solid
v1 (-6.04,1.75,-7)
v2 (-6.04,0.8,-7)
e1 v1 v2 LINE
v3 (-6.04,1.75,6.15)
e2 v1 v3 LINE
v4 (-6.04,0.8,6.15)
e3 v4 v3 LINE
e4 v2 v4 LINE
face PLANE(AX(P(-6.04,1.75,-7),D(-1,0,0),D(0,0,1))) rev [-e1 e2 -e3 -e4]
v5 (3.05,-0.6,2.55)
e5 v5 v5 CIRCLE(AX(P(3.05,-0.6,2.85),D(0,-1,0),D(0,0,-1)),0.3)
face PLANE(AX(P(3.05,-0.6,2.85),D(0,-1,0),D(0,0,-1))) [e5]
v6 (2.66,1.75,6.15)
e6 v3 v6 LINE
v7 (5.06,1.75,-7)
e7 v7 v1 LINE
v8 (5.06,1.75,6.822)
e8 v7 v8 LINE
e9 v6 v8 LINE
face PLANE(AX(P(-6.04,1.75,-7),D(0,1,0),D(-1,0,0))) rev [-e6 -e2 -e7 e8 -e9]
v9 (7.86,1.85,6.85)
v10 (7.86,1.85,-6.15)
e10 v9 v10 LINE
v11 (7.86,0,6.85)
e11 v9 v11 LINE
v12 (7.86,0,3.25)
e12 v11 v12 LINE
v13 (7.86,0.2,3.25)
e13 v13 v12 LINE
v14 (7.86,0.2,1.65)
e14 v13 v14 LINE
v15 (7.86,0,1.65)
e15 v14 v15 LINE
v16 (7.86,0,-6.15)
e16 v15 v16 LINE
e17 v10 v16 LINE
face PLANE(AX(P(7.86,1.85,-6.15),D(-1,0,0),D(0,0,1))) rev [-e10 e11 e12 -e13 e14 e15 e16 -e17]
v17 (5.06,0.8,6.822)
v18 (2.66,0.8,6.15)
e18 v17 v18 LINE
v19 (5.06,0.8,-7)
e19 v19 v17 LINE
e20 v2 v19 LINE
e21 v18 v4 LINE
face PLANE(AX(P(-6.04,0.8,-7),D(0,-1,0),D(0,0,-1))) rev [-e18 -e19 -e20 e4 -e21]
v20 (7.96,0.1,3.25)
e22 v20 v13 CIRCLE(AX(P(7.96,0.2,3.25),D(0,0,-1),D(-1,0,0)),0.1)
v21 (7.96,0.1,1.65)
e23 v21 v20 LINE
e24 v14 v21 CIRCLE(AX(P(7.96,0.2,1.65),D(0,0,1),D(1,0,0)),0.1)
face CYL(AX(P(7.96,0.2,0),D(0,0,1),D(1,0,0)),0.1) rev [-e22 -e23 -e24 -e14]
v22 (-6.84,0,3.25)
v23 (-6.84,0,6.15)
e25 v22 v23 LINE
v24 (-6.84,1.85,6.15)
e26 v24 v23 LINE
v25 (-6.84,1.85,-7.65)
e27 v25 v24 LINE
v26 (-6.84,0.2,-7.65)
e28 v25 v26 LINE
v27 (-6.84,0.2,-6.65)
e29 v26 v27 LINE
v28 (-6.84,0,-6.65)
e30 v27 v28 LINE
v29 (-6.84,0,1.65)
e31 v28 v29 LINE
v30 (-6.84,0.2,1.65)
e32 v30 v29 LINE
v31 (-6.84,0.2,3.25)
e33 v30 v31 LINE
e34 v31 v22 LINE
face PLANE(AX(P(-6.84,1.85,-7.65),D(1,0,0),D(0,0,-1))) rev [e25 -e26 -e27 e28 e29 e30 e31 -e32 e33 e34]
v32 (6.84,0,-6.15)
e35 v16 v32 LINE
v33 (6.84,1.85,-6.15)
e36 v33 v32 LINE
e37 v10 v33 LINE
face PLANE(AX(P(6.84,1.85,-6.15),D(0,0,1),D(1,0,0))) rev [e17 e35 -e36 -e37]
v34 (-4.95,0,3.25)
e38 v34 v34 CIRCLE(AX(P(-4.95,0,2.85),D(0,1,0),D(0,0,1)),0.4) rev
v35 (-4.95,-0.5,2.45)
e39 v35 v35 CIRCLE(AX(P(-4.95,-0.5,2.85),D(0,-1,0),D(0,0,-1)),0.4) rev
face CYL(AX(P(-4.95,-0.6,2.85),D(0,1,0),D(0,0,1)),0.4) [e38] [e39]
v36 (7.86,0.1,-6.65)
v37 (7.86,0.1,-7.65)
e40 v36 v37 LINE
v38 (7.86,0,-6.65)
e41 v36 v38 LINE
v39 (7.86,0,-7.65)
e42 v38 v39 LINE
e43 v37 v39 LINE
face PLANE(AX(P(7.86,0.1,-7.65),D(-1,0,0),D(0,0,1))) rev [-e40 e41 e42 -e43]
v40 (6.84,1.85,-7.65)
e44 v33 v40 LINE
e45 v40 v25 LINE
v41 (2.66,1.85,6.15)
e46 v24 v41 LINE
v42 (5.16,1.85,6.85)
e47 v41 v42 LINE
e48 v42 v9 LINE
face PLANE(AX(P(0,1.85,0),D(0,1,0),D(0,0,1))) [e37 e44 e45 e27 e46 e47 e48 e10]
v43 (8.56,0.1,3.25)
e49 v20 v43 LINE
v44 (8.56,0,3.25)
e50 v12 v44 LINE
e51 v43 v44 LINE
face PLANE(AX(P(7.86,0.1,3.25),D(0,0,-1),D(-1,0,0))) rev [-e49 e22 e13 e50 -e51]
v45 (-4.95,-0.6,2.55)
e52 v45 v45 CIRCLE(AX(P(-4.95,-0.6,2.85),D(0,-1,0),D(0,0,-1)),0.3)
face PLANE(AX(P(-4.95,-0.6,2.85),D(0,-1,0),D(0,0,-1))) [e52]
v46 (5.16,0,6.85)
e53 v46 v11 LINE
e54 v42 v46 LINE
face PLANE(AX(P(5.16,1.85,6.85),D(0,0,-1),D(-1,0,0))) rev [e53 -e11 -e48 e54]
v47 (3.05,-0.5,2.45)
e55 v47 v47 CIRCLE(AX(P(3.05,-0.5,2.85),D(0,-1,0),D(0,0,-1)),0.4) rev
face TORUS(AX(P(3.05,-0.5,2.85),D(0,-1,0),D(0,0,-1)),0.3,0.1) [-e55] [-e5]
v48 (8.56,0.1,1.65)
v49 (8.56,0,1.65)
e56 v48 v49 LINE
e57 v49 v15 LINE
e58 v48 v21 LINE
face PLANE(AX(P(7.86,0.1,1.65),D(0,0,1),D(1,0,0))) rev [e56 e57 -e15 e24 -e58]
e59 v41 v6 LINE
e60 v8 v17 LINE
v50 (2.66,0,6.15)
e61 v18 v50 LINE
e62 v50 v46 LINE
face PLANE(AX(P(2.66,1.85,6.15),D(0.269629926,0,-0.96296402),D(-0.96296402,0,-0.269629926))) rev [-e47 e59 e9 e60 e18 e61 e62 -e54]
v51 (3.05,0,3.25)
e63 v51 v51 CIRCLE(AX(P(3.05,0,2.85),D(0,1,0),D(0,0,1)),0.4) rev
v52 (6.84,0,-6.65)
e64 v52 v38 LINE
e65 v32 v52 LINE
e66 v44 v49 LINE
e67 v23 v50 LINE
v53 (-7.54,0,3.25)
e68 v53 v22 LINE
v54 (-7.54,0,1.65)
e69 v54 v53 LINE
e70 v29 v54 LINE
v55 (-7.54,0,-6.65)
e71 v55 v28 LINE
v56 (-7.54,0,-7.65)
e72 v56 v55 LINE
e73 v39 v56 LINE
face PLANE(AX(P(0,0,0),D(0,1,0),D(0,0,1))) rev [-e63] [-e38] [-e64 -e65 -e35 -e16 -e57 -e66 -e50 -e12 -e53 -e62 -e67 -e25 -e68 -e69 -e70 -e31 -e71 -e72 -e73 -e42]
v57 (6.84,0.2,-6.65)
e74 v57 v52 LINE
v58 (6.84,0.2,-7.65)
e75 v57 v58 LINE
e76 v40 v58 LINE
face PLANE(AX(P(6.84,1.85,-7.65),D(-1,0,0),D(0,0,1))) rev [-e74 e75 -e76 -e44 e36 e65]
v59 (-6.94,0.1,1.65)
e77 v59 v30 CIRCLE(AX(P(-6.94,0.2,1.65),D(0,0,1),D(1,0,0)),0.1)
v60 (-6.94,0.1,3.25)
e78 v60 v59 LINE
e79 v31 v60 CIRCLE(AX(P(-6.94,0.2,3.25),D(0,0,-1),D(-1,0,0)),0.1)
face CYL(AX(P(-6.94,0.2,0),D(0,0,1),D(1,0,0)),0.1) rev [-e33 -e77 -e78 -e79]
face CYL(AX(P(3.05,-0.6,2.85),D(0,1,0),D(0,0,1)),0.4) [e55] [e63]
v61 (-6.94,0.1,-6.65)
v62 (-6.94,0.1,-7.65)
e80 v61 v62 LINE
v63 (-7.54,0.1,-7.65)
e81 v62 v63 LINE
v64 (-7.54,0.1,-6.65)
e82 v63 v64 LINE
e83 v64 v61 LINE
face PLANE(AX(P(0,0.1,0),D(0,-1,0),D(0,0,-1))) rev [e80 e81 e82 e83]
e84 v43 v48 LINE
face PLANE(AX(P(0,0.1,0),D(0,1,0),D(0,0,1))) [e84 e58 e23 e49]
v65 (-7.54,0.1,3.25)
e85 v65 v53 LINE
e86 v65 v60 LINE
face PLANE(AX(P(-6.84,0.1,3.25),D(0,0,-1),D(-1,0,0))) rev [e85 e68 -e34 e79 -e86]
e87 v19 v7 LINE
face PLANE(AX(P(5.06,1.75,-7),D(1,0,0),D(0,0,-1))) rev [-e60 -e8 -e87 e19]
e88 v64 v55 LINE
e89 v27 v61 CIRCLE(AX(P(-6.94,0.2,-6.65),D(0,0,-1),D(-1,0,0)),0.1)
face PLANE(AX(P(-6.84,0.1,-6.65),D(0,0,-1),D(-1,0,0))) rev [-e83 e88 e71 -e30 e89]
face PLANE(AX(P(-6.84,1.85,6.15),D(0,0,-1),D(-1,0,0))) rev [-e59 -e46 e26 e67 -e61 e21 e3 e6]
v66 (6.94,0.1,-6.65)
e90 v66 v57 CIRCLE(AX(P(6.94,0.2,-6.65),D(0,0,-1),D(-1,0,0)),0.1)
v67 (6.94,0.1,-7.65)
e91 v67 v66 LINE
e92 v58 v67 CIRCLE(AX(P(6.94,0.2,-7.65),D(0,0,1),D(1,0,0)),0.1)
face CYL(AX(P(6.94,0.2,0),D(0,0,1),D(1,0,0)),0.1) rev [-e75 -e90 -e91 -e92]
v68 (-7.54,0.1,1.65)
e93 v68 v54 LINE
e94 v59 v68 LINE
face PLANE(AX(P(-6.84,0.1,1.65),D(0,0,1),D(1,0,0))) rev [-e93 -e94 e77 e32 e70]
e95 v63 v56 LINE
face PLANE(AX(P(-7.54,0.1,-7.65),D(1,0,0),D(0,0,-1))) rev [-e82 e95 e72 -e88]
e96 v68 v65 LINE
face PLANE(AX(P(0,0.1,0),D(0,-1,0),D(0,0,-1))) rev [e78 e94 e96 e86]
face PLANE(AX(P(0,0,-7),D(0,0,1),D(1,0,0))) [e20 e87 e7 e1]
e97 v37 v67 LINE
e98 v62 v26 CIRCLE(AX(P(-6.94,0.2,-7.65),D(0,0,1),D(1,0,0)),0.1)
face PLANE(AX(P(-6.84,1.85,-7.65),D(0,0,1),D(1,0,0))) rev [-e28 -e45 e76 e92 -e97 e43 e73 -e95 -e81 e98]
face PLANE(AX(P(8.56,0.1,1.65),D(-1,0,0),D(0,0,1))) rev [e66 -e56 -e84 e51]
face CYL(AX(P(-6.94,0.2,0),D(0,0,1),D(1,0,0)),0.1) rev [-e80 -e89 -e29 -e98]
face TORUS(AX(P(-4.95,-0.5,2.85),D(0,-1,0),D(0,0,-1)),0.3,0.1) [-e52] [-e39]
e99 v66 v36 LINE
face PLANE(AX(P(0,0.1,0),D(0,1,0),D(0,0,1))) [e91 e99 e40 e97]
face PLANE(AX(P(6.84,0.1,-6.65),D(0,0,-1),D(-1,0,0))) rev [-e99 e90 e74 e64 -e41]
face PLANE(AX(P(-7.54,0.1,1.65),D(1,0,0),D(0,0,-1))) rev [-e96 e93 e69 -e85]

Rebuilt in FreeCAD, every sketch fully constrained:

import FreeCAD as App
import Part
import Sketcher


def edges_at(feature, points):
    """Names of the edges that pass closest to the given points."""
    edges = feature.Shape.Edges
    near = lambda p: min(range(len(edges)), key=lambda i: edges[i].distToShape(Part.Vertex(*p))[0])
    return sorted({f"Edge{near(p) + 1}" for p in points})


def add_polygon(sketch, points):
    """Adds a closed chain of lines whose ends are joined by coincident constraints."""
    first, n = sketch.GeometryCount, len(points)
    for a, b in zip(points, points[1:] + points[:1]):
        sketch.addGeometry(Part.LineSegment(App.Vector(*a, 0), App.Vector(*b, 0)), False)
    for i in range(n):
        sketch.addConstraint(Sketcher.Constraint("Coincident", first + i, 2, first + (i + 1) % n, 1))

doc = App.newDocument("Part")
body = doc.addObject("PartDesign::Body", "Body")

# Sketch on XZ plane
sketch1 = body.newObject("Sketcher::SketchObject", "Sketch")
sketch1.AttachmentSupport = (doc.getObject("XZ_Plane"), [""])
sketch1.MapMode = "FlatFace"
add_polygon(sketch1, [(2.7, 6.2), (5.2, 6.8), (7.9, 6.8), (7.9, -6.2), (6.8, -6.2), (6.8, -7.7), (-6.8, -7.7), (-6.8, 6.2)])  # lines 0-7
sketch1.addConstraint([
    Sketcher.Constraint("Horizontal", 1),
    Sketcher.Constraint("Vertical", 2),
    Sketcher.Constraint("Horizontal", 3),
    Sketcher.Constraint("Vertical", 4),
    Sketcher.Constraint("Horizontal", 5),
    Sketcher.Constraint("Vertical", 6),
    Sketcher.Constraint("Horizontal", 7),
    Sketcher.Constraint("Symmetric", 3, 2, 6, 2, -1, 1),
    Sketcher.Constraint("DistanceY", 2, 2, 2, 1, 13.0),
    Sketcher.Constraint("DistanceX", 1, 1, 1, 2, 2.7),
    Sketcher.Constraint("DistanceX", 7, 1, 7, 2, 9.5),
    Sketcher.Constraint("DistanceY", 4, 2, 4, 1, 1.5),
    Sketcher.Constraint("DistanceY", 6, 1, 6, 2, 13.8),
    Sketcher.Constraint("DistanceX", 5, 2, 0, 2, 12.0),
    Sketcher.Constraint("DistanceX", 3, 2, 3, 1, 1.02),
])
pad1 = body.newObject("PartDesign::Pad", "Pad")
pad1.Profile = sketch1
pad1.Length = 1.85
pad1.Reversed = True

# Sketch on XZ plane
sketch2 = body.newObject("Sketcher::SketchObject", "Sketch001")
sketch2.AttachmentSupport = (doc.getObject("XZ_Plane"), [""])
sketch2.MapMode = "FlatFace"
add_polygon(sketch2, [(7.9, 1.6), (7.9, 3.2), (8.6, 3.2), (8.6, 1.6)])  # lines 0-3
add_polygon(sketch2, [(6.8, -7.7), (6.8, -6.7), (7.9, -6.7), (7.9, -7.7)])  # lines 4-7
add_polygon(sketch2, [(-7.5, -7.7), (-7.5, -6.7), (-6.8, -6.7), (-6.8, -7.7)])  # lines 8-11
add_polygon(sketch2, [(-7.5, 1.6), (-7.5, 3.2), (-6.8, 3.2), (-6.8, 1.6)])  # lines 12-15
sketch2.addConstraint([
    Sketcher.Constraint("Vertical", 0),
    Sketcher.Constraint("Horizontal", 1),
    Sketcher.Constraint("Vertical", 2),
    Sketcher.Constraint("Horizontal", 3),
    Sketcher.Constraint("Vertical", 4),
    Sketcher.Constraint("Horizontal", 5),
    Sketcher.Constraint("Vertical", 6),
    Sketcher.Constraint("Horizontal", 7),
    Sketcher.Constraint("Vertical", 8),
    Sketcher.Constraint("Horizontal", 9),
    Sketcher.Constraint("Vertical", 10),
    Sketcher.Constraint("Horizontal", 11),
    Sketcher.Constraint("Vertical", 12),
    Sketcher.Constraint("Horizontal", 13),
    Sketcher.Constraint("Vertical", 14),
    Sketcher.Constraint("Horizontal", 15),
    Sketcher.Constraint("Symmetric", 4, 2, 9, 2, -2),
    Sketcher.Constraint("Horizontal", 7, 2, 10, 2),
    Sketcher.Constraint("Horizontal", 1, 2, 12, 2),
    Sketcher.Constraint("Horizontal", 3, 2, 14, 2),
    Sketcher.Constraint("Vertical", 3, 2, 5, 2),
    Sketcher.Constraint("Vertical", 11, 2, 12, 2),
    Sketcher.Constraint("Vertical", 10, 2, 13, 2),
    Sketcher.Constraint("Equal", 3, 9),
    Sketcher.Constraint("DistanceY", 4, 1, 4, 2, 1.0),
    Sketcher.Constraint("DistanceX", 1, 1, 1, 2, 0.7),
    Sketcher.Constraint("DistanceY", 0, 1, 0, 2, 1.6),
    Sketcher.Constraint("DistanceX", 5, 1, 5, 2, 1.02),
    Sketcher.Constraint("DistanceY", 4, 2, 3, 2, 8.3),
    Sketcher.Constraint("DistanceX", 8, 2, 5, 2, 15.4),
    Sketcher.Constraint("DistanceY", -1, 1, 0, 2, 3.25),
])
pad2 = body.newObject("PartDesign::Pad", "Pad001")
pad2.Profile = sketch2
pad2.Length = 0.1
pad2.Reversed = True

# Sketch on XZ plane
sketch3 = body.newObject("Sketcher::SketchObject", "Sketch002")
sketch3.AttachmentSupport = (doc.getObject("XZ_Plane"), [""])
sketch3.MapMode = "FlatFace"
sketch3.addGeometry([
    Part.Circle(App.Vector(-4.95, 2.85, 0), App.Vector(0, 0, 1), 0.4),
    Part.Circle(App.Vector(3.05, 2.85, 0), App.Vector(0, 0, 1), 0.4),
], False)
sketch3.addConstraint([
    Sketcher.Constraint("Equal", 0, 1),
    Sketcher.Constraint("Horizontal", 0, 3, 1, 3),
    Sketcher.Constraint("Diameter", 0, 0.8),
    Sketcher.Constraint("DistanceX", 0, 3, 1, 3, 8.0),
    Sketcher.Constraint("DistanceX", 0, 3, -1, 1, 4.95),
    Sketcher.Constraint("DistanceY", -1, 1, 0, 3, 2.85),
])
pad3 = body.newObject("PartDesign::Pad", "Pad002")
pad3.Profile = sketch3
pad3.Length = 0.6

# Sketch on XY plane
sketch4 = body.newObject("Sketcher::SketchObject", "Sketch003")
sketch4.AttachmentSupport = (doc.getObject("XY_Plane"), [""])
sketch4.MapMode = "FlatFace"
add_polygon(sketch4, [(-6, 1.8), (-6, 0.8), (5.1, 0.8), (5.1, 1.8)])  # lines 0-3
sketch4.addConstraint([
    Sketcher.Constraint("Vertical", 0),
    Sketcher.Constraint("Horizontal", 1),
    Sketcher.Constraint("Vertical", 2),
    Sketcher.Constraint("Horizontal", 3),
    Sketcher.Constraint("DistanceX", 1, 1, 1, 2, 11.1),
    Sketcher.Constraint("DistanceY", 0, 2, 0, 1, 0.95),
    Sketcher.Constraint("DistanceY", -1, 1, 0, 2, 0.8),
    Sketcher.Constraint("DistanceX", 0, 2, -1, 1, 6.04),
])
pocket1 = body.newObject("PartDesign::Pocket", "Pocket")
pocket1.Profile = sketch4
pocket1.Type = "TwoLengths"
pocket1.Length = 12.628353
pocket1.Length2 = 7
pocket1.Reversed = True
doc.recompute()

fillet = body.newObject("PartDesign::Fillet", "Fillet")
fillet.Base = (pocket1, edges_at(pocket1, [(-4.95, -0.6, 2.45), (3.05, -0.6, 2.45)]))
fillet.Radius = 0.1
doc.recompute()

fillet2 = body.newObject("PartDesign::Fillet", "Fillet001")
fillet2.Base = (fillet, edges_at(fillet, [
    (6.84, 0.1, -7.15),
    (7.86, 0.1, 2.45),
    (-6.84, 0.1, -7.15),
    (-6.84, 0.1, 2.45),
]))
fillet2.Radius = 0.1

doc.recompute()
